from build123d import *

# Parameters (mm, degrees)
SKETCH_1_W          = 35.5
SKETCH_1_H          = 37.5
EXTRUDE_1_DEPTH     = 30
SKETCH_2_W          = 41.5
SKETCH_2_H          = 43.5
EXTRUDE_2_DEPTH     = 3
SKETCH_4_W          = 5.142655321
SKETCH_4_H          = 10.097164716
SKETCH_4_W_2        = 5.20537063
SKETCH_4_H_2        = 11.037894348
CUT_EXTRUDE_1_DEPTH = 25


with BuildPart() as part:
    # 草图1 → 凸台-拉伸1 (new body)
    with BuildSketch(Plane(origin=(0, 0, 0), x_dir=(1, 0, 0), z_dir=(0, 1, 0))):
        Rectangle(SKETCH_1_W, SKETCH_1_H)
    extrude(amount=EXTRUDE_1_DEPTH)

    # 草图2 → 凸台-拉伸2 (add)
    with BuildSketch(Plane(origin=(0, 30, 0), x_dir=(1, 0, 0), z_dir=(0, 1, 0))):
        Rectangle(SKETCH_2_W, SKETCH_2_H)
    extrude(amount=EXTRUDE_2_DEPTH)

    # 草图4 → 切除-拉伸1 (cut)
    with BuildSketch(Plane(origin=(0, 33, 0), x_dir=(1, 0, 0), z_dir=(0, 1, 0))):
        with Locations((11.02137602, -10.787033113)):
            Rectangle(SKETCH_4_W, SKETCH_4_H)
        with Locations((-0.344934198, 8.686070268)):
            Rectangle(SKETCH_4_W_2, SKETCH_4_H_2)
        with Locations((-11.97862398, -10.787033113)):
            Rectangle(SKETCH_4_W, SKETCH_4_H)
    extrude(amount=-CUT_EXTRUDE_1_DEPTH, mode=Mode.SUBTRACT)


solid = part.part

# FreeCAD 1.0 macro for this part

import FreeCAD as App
import Part
import Sketcher
from FreeCAD import Vector

doc = App.newDocument("Part")
body = doc.addObject("PartDesign::Body", "Body")

sketch1 = body.newObject("Sketcher::SketchObject", "Sketch")
sketch1.AttachmentSupport = (doc.getObject("XZ_Plane"), [""])
sketch1.MapMode = "FlatFace"
sketch1.addGeometry([
    Part.LineSegment(Vector(-17.75, -18.75, 0), Vector(-17.75, 18.75, 0)),
    Part.LineSegment(Vector(-17.75, 18.75, 0), Vector(17.75, 18.75, 0)),
    Part.LineSegment(Vector(17.75, 18.75, 0), Vector(17.75, -18.75, 0)),
    Part.LineSegment(Vector(17.75, -18.75, 0), Vector(-17.75, -18.75, 0)),
], False)
sketch1.addConstraint([
    Sketcher.Constraint("Coincident", 0, 2, 1, 1),
    Sketcher.Constraint("Coincident", 1, 2, 2, 1),
    Sketcher.Constraint("Coincident", 2, 2, 3, 1),
    Sketcher.Constraint("Coincident", 3, 2, 0, 1),
    Sketcher.Constraint("Vertical", 0),
    Sketcher.Constraint("Horizontal", 1),
    Sketcher.Constraint("Vertical", 2),
    Sketcher.Constraint("Horizontal", 3),
    Sketcher.Constraint("Symmetric", 0, 2, 2, 2, -1, 1),
    Sketcher.Constraint("DistanceX", 1, 1, 1, 2, 35.5),
    Sketcher.Constraint("DistanceY", 0, 1, 0, 2, 37.5),
])
pad1 = body.newObject("PartDesign::Pad", "Pad")
pad1.Profile = sketch1
pad1.Length = 30
pad1.Reversed = True

sketch2 = body.newObject("Sketcher::SketchObject", "Sketch001")
sketch2.AttachmentSupport = (doc.getObject("XZ_Plane"), [""])
sketch2.MapMode = "FlatFace"
sketch2.AttachmentOffset = App.Placement(Vector(0, 0, -30), App.Rotation())
sketch2.addGeometry([
    Part.LineSegment(Vector(-20.75, -21.75, 0), Vector(-20.75, 21.75, 0)),
    Part.LineSegment(Vector(-20.75, 21.75, 0), Vector(20.75, 21.75, 0)),
    Part.LineSegment(Vector(20.75, 21.75, 0), Vector(20.75, -21.75, 0)),
    Part.LineSegment(Vector(20.75, -21.75, 0), Vector(-20.75, -21.75, 0)),
], False)
sketch2.addConstraint([
    Sketcher.Constraint("Coincident", 0, 2, 1, 1),
    Sketcher.Constraint("Coincident", 1, 2, 2, 1),
    Sketcher.Constraint("Coincident", 2, 2, 3, 1),
    Sketcher.Constraint("Coincident", 3, 2, 0, 1),
    Sketcher.Constraint("Vertical", 0),
    Sketcher.Constraint("Horizontal", 1),
    Sketcher.Constraint("Vertical", 2),
    Sketcher.Constraint("Horizontal", 3),
    Sketcher.Constraint("Symmetric", 0, 2, 2, 2, -1, 1),
    Sketcher.Constraint("DistanceX", 1, 1, 1, 2, 41.5),
    Sketcher.Constraint("DistanceY", 0, 1, 0, 2, 43.5),
])
pad2 = body.newObject("PartDesign::Pad", "Pad001")
pad2.Profile = sketch2
pad2.Length = 3
pad2.Reversed = True

sketch3 = body.newObject("Sketcher::SketchObject", "Sketch002")
sketch3.AttachmentSupport = (doc.getObject("XZ_Plane"), [""])
sketch3.MapMode = "FlatFace"
sketch3.AttachmentOffset = App.Placement(Vector(0, 0, -33), App.Rotation())
sketch3.addGeometry([
    Part.LineSegment(Vector(8.450048, 5.738451, 0), Vector(8.450048, 15.835615, 0)),
    Part.LineSegment(Vector(8.450048, 15.835615, 0), Vector(13.592704, 15.835615, 0)),
    Part.LineSegment(Vector(13.592704, 15.835615, 0), Vector(13.592704, 5.738451, 0)),
    Part.LineSegment(Vector(13.592704, 5.738451, 0), Vector(8.450048, 5.738451, 0)),
    Part.LineSegment(Vector(-2.94762, -14.205017, 0), Vector(-2.94762, -3.167123, 0)),
    Part.LineSegment(Vector(-2.94762, -3.167123, 0), Vector(2.257751, -3.167123, 0)),
    Part.LineSegment(Vector(2.257751, -3.167123, 0), Vector(2.257751, -14.205017, 0)),
    Part.LineSegment(Vector(2.257751, -14.205017, 0), Vector(-2.94762, -14.205017, 0)),
    Part.LineSegment(Vector(-14.549952, 5.738451, 0), Vector(-14.549952, 15.835615, 0)),
    Part.LineSegment(Vector(-14.549952, 15.835615, 0), Vector(-9.407296, 15.835615, 0)),
    Part.LineSegment(Vector(-9.407296, 15.835615, 0), Vector(-9.407296, 5.738451, 0)),
    Part.LineSegment(Vector(-9.407296, 5.738451, 0), Vector(-14.549952, 5.738451, 0)),
], False)
sketch3.addConstraint([
    Sketcher.Constraint("Coincident", 0, 2, 1, 1),
    Sketcher.Constraint("Coincident", 1, 2, 2, 1),
    Sketcher.Constraint("Coincident", 2, 2, 3, 1),
    Sketcher.Constraint("Coincident", 3, 2, 0, 1),
    Sketcher.Constraint("Coincident", 4, 2, 5, 1),
    Sketcher.Constraint("Coincident", 5, 2, 6, 1),
    Sketcher.Constraint("Coincident", 6, 2, 7, 1),
    Sketcher.Constraint("Coincident", 7, 2, 4, 1),
    Sketcher.Constraint("Coincident", 8, 2, 9, 1),
    Sketcher.Constraint("Coincident", 9, 2, 10, 1),
    Sketcher.Constraint("Coincident", 10, 2, 11, 1),
    Sketcher.Constraint("Coincident", 11, 2, 8, 1),
    Sketcher.Constraint("Vertical", 0),
    Sketcher.Constraint("Horizontal", 1),
    Sketcher.Constraint("Vertical", 2),
    Sketcher.Constraint("Horizontal", 3),
    Sketcher.Constraint("Vertical", 4),
    Sketcher.Constraint("Horizontal", 5),
    Sketcher.Constraint("Vertical", 6),
    Sketcher.Constraint("Horizontal", 7),
    Sketcher.Constraint("Vertical", 8),
    Sketcher.Constraint("Horizontal", 9),
    Sketcher.Constraint("Vertical", 10),
    Sketcher.Constraint("Horizontal", 11),
    Sketcher.Constraint("Horizontal", 1, 2, 8, 2),
    Sketcher.Constraint("Horizontal", 3, 2, 10, 2),
    Sketcher.Constraint("Equal", 3, 9),
    Sketcher.Constraint("DistanceX", 8, 2, 0, 2, 23.0),
    Sketcher.Constraint("DistanceX", 5, 1, 5, 2, 5.205371),
    Sketcher.Constraint("DistanceX", 1, 1, 1, 2, 5.142655),
    Sketcher.Constraint("DistanceY", 0, 1, 0, 2, 10.097165),
    Sketcher.Constraint("DistanceY", 4, 1, 4, 2, 11.037894),
    Sketcher.Constraint("DistanceX", -1, 1, 0, 2, 8.450048),
    Sketcher.Constraint("DistanceY", -1, 1, 2, 2, 5.738451),
    Sketcher.Constraint("DistanceX", 4, 2, -1, 1, 2.94762),
    Sketcher.Constraint("DistanceY", 4, 2, 0, 2, 19.002739),
])
pocket1 = body.newObject("PartDesign::Pocket", "Pocket")
pocket1.Profile = sketch3
pocket1.Length = 25
pocket1.Reversed = True

doc.recompute()
